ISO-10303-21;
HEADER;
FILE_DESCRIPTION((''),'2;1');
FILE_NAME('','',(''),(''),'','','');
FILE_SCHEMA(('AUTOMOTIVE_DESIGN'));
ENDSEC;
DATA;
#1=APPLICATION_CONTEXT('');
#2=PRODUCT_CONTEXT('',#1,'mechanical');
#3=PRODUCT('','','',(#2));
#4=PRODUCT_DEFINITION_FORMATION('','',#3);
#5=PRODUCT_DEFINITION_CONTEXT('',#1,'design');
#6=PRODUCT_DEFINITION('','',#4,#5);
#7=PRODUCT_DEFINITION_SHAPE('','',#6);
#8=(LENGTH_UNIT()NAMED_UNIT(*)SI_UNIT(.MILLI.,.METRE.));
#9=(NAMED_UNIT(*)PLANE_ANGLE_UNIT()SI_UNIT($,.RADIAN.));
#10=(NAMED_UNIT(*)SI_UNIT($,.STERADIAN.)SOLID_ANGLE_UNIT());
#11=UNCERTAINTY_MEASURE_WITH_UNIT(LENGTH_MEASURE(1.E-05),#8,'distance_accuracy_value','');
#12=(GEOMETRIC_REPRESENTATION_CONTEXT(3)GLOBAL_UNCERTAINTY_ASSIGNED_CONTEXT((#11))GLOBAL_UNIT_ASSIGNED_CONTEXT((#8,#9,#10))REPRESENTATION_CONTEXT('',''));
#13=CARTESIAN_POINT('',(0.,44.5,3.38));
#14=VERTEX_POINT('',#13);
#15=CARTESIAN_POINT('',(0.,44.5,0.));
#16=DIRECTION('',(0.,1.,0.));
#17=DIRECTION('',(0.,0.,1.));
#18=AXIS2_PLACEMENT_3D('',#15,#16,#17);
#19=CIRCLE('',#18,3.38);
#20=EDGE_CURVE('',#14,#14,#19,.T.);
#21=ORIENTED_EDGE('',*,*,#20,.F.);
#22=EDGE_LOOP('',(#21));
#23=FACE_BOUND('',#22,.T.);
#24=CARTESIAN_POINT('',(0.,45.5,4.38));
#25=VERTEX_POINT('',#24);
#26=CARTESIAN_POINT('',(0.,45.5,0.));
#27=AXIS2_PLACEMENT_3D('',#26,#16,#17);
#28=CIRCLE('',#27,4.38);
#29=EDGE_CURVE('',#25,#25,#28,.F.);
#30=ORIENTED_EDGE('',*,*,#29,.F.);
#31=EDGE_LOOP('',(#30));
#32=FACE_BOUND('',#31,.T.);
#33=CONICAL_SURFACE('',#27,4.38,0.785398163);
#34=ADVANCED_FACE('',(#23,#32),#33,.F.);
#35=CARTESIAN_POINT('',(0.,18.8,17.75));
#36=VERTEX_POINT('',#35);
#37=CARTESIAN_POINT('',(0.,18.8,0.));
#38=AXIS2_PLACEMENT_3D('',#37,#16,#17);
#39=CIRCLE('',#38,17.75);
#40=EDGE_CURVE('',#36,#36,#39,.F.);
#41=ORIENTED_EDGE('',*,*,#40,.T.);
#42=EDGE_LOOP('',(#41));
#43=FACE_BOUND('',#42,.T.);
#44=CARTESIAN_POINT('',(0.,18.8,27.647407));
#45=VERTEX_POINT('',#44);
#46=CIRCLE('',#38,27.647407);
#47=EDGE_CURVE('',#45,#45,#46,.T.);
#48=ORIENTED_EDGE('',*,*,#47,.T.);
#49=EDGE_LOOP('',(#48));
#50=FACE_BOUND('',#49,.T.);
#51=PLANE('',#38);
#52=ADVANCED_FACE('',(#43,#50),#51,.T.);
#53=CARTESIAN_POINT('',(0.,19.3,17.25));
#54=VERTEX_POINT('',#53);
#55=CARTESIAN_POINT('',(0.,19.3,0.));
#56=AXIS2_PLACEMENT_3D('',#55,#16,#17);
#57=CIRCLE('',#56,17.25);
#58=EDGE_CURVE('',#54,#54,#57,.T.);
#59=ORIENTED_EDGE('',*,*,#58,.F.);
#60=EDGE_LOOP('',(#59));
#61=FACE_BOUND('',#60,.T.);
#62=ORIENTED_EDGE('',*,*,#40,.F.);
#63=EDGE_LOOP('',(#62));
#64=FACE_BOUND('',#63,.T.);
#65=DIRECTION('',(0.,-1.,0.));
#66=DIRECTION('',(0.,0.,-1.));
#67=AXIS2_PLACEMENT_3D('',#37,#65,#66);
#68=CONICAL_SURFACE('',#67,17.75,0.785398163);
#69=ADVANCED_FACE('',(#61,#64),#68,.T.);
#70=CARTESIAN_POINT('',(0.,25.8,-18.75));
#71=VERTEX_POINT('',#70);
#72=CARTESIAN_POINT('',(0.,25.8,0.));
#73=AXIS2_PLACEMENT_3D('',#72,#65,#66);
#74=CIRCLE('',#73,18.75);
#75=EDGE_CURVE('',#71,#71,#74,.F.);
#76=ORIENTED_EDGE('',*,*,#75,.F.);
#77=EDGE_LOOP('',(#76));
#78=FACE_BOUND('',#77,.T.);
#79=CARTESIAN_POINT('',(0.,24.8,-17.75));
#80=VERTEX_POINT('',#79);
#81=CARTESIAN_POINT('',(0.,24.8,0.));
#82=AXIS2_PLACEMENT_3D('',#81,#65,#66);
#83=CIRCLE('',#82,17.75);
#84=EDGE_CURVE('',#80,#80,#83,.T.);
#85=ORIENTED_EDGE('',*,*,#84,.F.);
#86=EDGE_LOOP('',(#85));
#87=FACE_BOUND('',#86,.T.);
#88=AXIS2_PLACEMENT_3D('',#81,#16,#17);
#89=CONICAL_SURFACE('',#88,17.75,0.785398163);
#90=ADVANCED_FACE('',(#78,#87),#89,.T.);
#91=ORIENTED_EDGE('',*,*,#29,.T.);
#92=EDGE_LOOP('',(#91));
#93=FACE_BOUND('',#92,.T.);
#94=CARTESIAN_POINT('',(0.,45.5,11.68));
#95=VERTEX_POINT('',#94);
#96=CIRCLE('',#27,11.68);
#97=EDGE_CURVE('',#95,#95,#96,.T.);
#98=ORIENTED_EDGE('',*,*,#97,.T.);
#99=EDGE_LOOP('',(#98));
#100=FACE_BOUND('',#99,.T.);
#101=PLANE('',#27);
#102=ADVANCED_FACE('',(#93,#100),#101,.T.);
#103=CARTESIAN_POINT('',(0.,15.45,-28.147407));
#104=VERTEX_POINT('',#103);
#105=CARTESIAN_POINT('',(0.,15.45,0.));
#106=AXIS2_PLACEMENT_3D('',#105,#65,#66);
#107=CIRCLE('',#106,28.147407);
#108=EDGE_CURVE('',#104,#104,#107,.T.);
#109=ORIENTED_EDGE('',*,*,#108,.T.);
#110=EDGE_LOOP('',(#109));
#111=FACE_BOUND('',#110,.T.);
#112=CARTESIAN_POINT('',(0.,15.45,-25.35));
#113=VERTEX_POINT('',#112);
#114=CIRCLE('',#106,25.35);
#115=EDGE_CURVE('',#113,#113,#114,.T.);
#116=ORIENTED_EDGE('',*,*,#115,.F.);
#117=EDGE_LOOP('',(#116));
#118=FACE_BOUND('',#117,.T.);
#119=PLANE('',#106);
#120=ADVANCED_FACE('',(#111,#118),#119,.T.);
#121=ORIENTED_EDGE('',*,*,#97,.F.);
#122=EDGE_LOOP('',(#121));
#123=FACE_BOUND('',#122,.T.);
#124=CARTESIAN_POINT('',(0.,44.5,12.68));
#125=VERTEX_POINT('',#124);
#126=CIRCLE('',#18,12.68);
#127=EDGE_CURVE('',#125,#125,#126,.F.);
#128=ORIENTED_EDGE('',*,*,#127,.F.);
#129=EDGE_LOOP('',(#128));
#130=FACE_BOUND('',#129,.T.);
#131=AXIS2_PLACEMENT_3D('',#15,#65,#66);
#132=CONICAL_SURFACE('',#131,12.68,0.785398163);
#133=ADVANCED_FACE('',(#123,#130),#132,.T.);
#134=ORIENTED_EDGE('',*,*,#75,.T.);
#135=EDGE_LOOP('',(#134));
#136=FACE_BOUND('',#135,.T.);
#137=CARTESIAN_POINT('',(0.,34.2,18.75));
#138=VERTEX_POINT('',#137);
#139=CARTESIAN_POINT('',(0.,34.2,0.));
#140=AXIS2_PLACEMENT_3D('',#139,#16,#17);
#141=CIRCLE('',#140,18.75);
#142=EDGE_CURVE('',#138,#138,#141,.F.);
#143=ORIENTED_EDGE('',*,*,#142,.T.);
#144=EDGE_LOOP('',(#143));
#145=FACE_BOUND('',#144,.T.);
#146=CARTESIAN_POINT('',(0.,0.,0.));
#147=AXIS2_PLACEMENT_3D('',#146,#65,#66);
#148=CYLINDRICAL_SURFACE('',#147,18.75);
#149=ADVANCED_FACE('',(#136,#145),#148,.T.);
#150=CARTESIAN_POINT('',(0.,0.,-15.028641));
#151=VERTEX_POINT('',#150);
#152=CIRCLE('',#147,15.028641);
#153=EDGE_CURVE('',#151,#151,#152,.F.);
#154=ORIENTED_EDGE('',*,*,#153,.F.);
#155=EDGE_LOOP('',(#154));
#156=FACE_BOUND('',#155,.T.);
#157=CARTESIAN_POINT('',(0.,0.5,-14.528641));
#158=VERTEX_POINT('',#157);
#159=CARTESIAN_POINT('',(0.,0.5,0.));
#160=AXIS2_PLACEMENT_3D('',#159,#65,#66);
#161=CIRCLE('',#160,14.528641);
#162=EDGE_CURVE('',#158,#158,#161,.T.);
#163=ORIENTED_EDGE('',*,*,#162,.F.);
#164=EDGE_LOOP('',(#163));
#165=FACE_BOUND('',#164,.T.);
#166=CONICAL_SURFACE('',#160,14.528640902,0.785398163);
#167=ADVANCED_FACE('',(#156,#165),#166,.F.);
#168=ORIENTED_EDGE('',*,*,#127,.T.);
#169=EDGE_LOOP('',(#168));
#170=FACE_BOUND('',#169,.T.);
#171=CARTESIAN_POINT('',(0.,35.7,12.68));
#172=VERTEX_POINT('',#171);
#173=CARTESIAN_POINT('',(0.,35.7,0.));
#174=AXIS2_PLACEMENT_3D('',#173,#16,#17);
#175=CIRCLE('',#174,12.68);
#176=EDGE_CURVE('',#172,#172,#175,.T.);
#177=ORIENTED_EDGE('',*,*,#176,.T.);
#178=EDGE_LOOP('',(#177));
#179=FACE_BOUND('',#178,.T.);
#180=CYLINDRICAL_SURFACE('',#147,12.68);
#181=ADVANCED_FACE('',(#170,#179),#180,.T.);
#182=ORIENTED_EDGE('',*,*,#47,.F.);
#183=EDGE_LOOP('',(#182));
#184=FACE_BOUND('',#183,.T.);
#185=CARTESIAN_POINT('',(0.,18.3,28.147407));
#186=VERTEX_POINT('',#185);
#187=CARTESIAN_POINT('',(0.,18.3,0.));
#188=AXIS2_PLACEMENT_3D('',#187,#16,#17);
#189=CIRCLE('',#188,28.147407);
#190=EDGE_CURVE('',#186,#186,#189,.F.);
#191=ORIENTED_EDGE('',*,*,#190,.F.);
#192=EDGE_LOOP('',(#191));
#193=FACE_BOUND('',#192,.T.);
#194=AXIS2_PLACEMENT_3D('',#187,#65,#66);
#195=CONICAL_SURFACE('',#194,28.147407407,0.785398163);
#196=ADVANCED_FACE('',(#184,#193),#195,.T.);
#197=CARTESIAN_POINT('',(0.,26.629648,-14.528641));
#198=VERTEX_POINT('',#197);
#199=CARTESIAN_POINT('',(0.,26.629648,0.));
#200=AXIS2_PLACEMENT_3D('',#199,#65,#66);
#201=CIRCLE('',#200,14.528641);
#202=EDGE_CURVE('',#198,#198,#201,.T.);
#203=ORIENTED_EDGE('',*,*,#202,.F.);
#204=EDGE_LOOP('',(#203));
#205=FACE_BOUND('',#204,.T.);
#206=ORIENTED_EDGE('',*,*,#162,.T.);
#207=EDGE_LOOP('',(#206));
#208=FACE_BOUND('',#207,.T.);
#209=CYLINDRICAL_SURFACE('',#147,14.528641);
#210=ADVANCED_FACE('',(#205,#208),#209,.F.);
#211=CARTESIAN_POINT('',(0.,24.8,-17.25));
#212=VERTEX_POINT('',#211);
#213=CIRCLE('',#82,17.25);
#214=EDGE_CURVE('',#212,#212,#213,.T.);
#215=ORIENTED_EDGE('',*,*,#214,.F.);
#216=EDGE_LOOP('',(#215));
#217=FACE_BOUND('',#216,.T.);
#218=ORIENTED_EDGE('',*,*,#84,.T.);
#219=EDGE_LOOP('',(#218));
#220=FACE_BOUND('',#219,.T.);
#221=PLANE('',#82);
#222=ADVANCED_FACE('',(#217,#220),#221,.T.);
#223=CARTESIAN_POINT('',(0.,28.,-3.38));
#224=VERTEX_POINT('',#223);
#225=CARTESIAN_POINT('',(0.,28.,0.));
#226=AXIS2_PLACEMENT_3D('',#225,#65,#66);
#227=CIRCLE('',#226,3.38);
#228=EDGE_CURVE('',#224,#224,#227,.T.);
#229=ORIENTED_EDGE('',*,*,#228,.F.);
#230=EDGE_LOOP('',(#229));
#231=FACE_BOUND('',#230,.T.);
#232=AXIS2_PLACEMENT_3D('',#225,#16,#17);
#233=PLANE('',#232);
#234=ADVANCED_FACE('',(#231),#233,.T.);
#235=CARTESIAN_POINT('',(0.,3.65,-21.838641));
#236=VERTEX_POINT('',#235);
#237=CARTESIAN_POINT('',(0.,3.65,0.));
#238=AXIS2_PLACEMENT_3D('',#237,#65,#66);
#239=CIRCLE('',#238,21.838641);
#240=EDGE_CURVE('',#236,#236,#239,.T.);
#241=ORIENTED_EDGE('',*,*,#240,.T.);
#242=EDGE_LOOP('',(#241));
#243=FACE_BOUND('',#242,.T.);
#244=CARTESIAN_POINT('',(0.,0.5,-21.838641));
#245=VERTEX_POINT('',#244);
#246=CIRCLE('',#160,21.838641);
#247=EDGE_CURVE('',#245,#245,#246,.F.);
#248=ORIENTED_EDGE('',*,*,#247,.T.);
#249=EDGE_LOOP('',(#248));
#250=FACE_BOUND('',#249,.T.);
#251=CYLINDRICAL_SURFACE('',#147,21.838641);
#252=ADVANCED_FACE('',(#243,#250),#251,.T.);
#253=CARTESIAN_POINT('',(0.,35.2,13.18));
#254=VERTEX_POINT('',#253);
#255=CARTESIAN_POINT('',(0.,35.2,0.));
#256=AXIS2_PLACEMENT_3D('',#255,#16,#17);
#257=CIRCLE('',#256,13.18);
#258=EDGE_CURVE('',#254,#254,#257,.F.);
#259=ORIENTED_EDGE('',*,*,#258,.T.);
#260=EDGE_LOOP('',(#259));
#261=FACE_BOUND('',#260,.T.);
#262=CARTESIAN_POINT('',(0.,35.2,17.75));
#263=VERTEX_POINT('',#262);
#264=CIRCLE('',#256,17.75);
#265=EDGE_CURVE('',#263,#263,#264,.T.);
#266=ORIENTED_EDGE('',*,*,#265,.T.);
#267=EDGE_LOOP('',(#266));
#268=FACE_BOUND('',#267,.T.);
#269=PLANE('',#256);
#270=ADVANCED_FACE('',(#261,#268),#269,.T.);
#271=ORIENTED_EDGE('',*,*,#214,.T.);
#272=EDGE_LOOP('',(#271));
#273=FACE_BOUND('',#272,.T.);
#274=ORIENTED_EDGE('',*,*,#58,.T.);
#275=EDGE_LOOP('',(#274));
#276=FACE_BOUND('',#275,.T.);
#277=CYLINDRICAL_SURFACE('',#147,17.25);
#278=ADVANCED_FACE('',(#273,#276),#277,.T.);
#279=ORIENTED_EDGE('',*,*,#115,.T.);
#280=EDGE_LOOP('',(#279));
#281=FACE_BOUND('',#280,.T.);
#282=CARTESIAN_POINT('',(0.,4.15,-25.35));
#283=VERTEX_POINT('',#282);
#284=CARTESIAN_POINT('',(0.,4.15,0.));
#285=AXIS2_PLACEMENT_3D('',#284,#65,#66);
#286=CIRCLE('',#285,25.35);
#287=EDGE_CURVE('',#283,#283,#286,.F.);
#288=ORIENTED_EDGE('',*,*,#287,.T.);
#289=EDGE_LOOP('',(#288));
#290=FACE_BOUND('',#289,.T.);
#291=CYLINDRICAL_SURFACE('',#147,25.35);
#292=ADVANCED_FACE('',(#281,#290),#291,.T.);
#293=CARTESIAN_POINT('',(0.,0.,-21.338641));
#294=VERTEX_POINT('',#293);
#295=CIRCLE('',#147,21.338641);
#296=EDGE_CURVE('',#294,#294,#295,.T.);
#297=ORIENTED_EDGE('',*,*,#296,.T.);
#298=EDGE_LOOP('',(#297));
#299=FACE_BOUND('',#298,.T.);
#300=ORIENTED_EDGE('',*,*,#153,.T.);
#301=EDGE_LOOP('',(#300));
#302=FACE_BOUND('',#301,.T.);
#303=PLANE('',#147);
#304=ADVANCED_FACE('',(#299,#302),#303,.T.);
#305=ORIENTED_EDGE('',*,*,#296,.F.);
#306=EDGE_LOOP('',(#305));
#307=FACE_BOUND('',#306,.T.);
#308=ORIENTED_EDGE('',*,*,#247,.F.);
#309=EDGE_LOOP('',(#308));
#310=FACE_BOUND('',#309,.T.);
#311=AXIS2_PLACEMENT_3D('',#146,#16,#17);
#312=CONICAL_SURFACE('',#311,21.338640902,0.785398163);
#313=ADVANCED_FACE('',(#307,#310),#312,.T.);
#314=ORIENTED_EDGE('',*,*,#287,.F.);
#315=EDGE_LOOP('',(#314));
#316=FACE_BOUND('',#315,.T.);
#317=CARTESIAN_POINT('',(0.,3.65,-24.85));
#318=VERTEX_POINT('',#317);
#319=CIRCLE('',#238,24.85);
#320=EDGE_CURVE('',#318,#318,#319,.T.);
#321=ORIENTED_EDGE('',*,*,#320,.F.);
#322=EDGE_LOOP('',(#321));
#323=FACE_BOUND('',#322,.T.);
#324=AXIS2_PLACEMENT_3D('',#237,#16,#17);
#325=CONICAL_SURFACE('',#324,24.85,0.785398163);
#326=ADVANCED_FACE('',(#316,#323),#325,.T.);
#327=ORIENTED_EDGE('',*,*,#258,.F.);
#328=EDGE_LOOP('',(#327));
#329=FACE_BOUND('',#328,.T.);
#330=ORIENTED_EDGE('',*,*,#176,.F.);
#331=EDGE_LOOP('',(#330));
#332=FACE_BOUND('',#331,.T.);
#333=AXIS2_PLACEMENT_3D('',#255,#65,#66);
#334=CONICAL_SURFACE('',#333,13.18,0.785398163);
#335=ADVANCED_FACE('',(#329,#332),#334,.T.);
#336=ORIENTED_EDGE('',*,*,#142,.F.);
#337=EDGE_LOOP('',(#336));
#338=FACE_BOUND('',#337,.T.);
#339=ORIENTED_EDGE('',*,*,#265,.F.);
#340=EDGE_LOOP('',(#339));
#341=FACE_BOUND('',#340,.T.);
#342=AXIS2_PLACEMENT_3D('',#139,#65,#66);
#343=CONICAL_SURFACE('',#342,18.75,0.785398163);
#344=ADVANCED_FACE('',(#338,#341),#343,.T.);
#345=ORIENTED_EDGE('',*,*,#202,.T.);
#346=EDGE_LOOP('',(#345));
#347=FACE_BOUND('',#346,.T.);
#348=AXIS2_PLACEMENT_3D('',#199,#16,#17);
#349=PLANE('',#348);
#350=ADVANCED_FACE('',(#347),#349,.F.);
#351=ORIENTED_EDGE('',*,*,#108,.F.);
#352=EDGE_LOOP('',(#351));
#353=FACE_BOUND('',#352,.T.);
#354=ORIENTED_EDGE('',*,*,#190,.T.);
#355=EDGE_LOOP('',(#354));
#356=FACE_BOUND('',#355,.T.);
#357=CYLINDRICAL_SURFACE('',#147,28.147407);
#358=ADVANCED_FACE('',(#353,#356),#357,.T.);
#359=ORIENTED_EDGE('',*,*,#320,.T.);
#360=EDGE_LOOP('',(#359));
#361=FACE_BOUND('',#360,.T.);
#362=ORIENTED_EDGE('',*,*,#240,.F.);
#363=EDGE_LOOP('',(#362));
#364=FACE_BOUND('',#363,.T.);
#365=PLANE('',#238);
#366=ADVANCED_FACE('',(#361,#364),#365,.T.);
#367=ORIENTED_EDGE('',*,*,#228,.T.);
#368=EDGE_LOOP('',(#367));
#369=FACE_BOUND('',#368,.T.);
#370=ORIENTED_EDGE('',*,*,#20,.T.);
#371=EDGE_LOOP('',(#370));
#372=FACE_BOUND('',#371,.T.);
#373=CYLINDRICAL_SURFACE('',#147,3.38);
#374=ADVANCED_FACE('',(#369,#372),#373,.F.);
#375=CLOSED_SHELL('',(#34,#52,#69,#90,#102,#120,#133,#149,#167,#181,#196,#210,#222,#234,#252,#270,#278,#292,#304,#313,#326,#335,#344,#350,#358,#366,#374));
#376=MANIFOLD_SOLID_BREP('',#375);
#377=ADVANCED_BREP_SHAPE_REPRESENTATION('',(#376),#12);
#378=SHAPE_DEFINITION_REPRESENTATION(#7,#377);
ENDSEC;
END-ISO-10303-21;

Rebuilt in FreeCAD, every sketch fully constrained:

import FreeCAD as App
import Part
import Sketcher
from FreeCAD import Vector


def edges_at(feature, points):
    """Names of the edges that pass closest to the given points."""
    edges = feature.Shape.Edges
    near = lambda p: min(range(len(edges)), key=lambda i: edges[i].distToShape(Part.Vertex(*p))[0])
    return sorted({f"Edge{near(p) + 1}" for p in points})


def add_polygon(sketch, points):
    """Adds a closed chain of lines whose ends are joined by coincident constraints."""
    first, n = sketch.GeometryCount, len(points)
    for a, b in zip(points, points[1:] + points[:1]):
        sketch.addGeometry(Part.LineSegment(App.Vector(*a, 0), App.Vector(*b, 0)), False)
    for i in range(n):
        sketch.addConstraint(Sketcher.Constraint("Coincident", first + i, 2, first + (i + 1) % n, 1))

doc = App.newDocument("Part")
body = doc.addObject("PartDesign::Body", "Body")

# Sketch on XY plane
sketch1 = body.newObject("Sketcher::SketchObject", "Sketch")
sketch1.AttachmentSupport = (doc.getObject("XY_Plane"), [""])
sketch1.MapMode = "FlatFace"
add_polygon(sketch1, [(0, 28), (0, 26.629648), (14.528641, 26.629648), (14.528641, 0), (21.838641, 0), (21.838641, 3.65), (25.35, 3.65), (25.35, 15.45), (28.147407, 15.45), (28.147407, 18.8), (17.25, 18.8), (17.25, 24.8), (18.75, 24.8), (18.75, 35.2), (12.68, 35.2), (12.68, 45.5), (3.38, 45.5), (3.38, 28)])  # lines 0-17
sketch1.addConstraint([
    Sketcher.Constraint("Vertical", 0),
    Sketcher.Constraint("Horizontal", 1),
    Sketcher.Constraint("Vertical", 2),
    Sketcher.Constraint("Horizontal", 3),
    Sketcher.Constraint("Vertical", 4),
    Sketcher.Constraint("Horizontal", 5),
    Sketcher.Constraint("Vertical", 6),
    Sketcher.Constraint("Horizontal", 7),
    Sketcher.Constraint("Vertical", 8),
    Sketcher.Constraint("Horizontal", 9),
    Sketcher.Constraint("Vertical", 10),
    Sketcher.Constraint("Horizontal", 11),
    Sketcher.Constraint("Vertical", 12),
    Sketcher.Constraint("Horizontal", 13),
    Sketcher.Constraint("Vertical", 14),
    Sketcher.Constraint("Horizontal", 15),
    Sketcher.Constraint("Vertical", 16),
    Sketcher.Constraint("Horizontal", 17),
    Sketcher.Constraint("PointOnObject", 0, 2, -2),
    Sketcher.Constraint("PointOnObject", 2, 2, -1),
    Sketcher.Constraint("DistanceY", 10, 1, 10, 2, 6.0),
    Sketcher.Constraint("DistanceX", 11, 1, 11, 2, 1.5),
    Sketcher.Constraint("DistanceX", 15, 2, 15, 1, 9.3),
    Sketcher.Constraint("DistanceY", 6, 1, 6, 2, 11.8),
    Sketcher.Constraint("DistanceY", 12, 1, 12, 2, 10.4),
    Sketcher.Constraint("DistanceY", 14, 1, 14, 2, 10.3),
    Sketcher.Constraint("DistanceY", 16, 2, 16, 1, 17.5),
    Sketcher.Constraint("DistanceY", -1, 1, 16, 2, 28.0),
    Sketcher.Constraint("DistanceX", 3, 1, 3, 2, 7.31),
    Sketcher.Constraint("DistanceX", 13, 2, 13, 1, 6.07),
    Sketcher.Constraint("DistanceX", 17, 2, 17, 1, 3.38),
    Sketcher.Constraint("DistanceY", 4, 1, 4, 2, 3.65),
    Sketcher.Constraint("DistanceX", 9, 2, 6, 2, 8.1),
    Sketcher.Constraint("DistanceX", 1, 1, 1, 2, 14.528641),
    Sketcher.Constraint("DistanceY", 0, 2, 0, 1, 1.370352),
    Sketcher.Constraint("DistanceX", 7, 1, 7, 2, 2.797407),
])
revolution = body.newObject("PartDesign::Revolution", "Revolution")
revolution.Profile = sketch1
revolution.ReferenceAxis = (sketch1, ["V_Axis"])
revolution.Angle = 360
doc.recompute()

chamfer = body.newObject("PartDesign::Chamfer", "Chamfer")
chamfer.Base = (revolution, edges_at(revolution, [(-3.38, 45.5, 0), (-18.75, 35.2, 0), (-18.75, 24.8, 0)]))
chamfer.Size = 1
doc.recompute()

chamfer2 = body.newObject("PartDesign::Chamfer", "Chamfer001")
chamfer2.Base = (chamfer, edges_at(chamfer, [(-12.68, 45.5, 0)]))
chamfer2.Size = 1
doc.recompute()

chamfer3 = body.newObject("PartDesign::Chamfer", "Chamfer002")
chamfer3.Base = (chamfer2, edges_at(chamfer2, [
    (-12.68, 35.2, 0),
    (-17.25, 18.8, 0),
    (-28.147, 18.8, 0),
    (-25.35, 3.65, 0),
    (-21.839, 0, 0),
    (-14.529, 0, 0),
]))
chamfer3.Size = 0.5

doc.recompute()
